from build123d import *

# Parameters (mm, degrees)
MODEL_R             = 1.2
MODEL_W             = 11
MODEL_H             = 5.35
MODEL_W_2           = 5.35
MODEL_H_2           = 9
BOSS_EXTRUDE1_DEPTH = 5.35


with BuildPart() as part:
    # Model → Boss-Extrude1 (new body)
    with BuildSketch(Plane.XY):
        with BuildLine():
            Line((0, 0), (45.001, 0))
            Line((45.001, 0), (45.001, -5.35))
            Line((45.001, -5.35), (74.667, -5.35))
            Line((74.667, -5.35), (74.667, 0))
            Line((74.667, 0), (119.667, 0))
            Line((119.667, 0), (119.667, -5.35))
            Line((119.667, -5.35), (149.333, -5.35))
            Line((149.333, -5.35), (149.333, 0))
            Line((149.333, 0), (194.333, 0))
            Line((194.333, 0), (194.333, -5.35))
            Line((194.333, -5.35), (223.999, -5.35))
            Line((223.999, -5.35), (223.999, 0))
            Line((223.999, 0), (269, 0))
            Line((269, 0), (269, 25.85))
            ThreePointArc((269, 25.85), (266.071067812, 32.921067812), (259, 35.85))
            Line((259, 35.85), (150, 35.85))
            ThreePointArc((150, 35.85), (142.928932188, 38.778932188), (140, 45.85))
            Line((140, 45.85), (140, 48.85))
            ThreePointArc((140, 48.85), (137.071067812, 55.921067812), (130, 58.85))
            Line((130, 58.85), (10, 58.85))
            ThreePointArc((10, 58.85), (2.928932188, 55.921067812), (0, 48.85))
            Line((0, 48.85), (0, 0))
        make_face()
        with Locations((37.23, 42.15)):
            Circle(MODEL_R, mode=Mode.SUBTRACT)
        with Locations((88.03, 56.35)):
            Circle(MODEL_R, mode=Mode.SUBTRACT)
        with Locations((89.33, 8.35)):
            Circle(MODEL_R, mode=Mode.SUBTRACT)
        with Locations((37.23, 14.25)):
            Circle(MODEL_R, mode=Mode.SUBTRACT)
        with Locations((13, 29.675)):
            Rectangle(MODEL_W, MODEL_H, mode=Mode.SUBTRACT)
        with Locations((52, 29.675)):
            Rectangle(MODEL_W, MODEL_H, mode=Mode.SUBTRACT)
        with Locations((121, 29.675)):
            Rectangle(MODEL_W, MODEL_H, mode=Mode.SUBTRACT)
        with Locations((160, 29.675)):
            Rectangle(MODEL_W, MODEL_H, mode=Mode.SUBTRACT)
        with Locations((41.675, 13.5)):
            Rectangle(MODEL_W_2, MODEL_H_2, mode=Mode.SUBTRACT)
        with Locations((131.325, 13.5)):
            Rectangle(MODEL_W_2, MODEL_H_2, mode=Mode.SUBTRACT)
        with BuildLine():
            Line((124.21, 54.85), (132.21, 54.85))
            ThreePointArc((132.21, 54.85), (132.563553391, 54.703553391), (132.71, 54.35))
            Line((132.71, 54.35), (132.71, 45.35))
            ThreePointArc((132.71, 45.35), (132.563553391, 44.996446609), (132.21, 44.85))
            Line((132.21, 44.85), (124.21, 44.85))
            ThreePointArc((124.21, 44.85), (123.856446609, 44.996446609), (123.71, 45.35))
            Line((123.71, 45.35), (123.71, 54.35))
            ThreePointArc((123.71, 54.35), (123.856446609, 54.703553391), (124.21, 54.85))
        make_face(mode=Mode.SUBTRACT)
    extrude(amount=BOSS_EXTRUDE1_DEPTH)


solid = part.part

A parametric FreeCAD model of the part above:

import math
import FreeCAD as App
import Part
import Sketcher

doc = App.newDocument("Part")
body = doc.addObject("PartDesign::Body", "Body")

sketch1 = body.newObject("Sketcher::SketchObject", "Sketch")
sketch1.AttachmentSupport = (doc.getObject("XY_Plane"), [""])
sketch1.MapMode = "FlatFace"
sketch1.addGeometry([
    Part.LineSegment(App.Vector(0, 0, 0), App.Vector(45, 0, 0)),
    Part.LineSegment(App.Vector(45, 0, 0), App.Vector(45, -5.35, 0)),
    Part.LineSegment(App.Vector(45, -5.35, 0), App.Vector(74.67, -5.35, 0)),
    Part.LineSegment(App.Vector(74.67, -5.35, 0), App.Vector(74.67, 0, 0)),
    Part.LineSegment(App.Vector(74.67, 0, 0), App.Vector(119.67, 0, 0)),
    Part.LineSegment(App.Vector(119.67, 0, 0), App.Vector(119.67, -5.35, 0)),
    Part.LineSegment(App.Vector(119.67, -5.35, 0), App.Vector(149.33, -5.35, 0)),
    Part.LineSegment(App.Vector(149.33, -5.35, 0), App.Vector(149.33, 0, 0)),
    Part.LineSegment(App.Vector(149.33, 0, 0), App.Vector(194.33, 0, 0)),
    Part.LineSegment(App.Vector(194.33, 0, 0), App.Vector(194.33, -5.35, 0)),
    Part.LineSegment(App.Vector(194.33, -5.35, 0), App.Vector(224, -5.35, 0)),
    Part.LineSegment(App.Vector(224, -5.35, 0), App.Vector(224, 0, 0)),
    Part.LineSegment(App.Vector(224, 0, 0), App.Vector(269, 0, 0)),
    Part.LineSegment(App.Vector(269, 0, 0), App.Vector(269, 25.85, 0)),
    Part.ArcOfCircle(Part.Circle(App.Vector(259, 25.85, 0), App.Vector(0, 0, 1), 10), math.radians(0), math.radians(90)),
    Part.LineSegment(App.Vector(259, 35.85, 0), App.Vector(150, 35.85, 0)),
    Part.ArcOfCircle(Part.Circle(App.Vector(150, 45.85, 0), App.Vector(0, 0, 1), 10), math.radians(180), math.radians(270)),
    Part.LineSegment(App.Vector(140, 45.85, 0), App.Vector(140, 48.85, 0)),
    Part.ArcOfCircle(Part.Circle(App.Vector(130, 48.85, 0), App.Vector(0, 0, 1), 10), math.radians(0), math.radians(90)),
    Part.LineSegment(App.Vector(130, 58.85, 0), App.Vector(10, 58.85, 0)),
    Part.ArcOfCircle(Part.Circle(App.Vector(10, 48.85, 0), App.Vector(0, 0, 1), 10), math.radians(90), math.radians(180)),
    Part.LineSegment(App.Vector(0, 48.85, 0), App.Vector(0, 0, 0)),
    Part.LineSegment(App.Vector(44.35, 9, 0), App.Vector(39, 9, 0)),
    Part.LineSegment(App.Vector(39, 9, 0), App.Vector(39, 18, 0)),
    Part.LineSegment(App.Vector(39, 18, 0), App.Vector(44.35, 18, 0)),
    Part.LineSegment(App.Vector(44.35, 18, 0), App.Vector(44.35, 9, 0)),
    Part.Circle(App.Vector(37.23, 14.25, 0), App.Vector(0, 0, 1), 1.2),
    Part.LineSegment(App.Vector(18.5, 27, 0), App.Vector(7.5, 27, 0)),
    Part.LineSegment(App.Vector(7.5, 27, 0), App.Vector(7.5, 32.35, 0)),
    Part.LineSegment(App.Vector(7.5, 32.35, 0), App.Vector(18.5, 32.35, 0)),
    Part.LineSegment(App.Vector(18.5, 32.35, 0), App.Vector(18.5, 27, 0)),
    Part.LineSegment(App.Vector(57.5, 27, 0), App.Vector(46.5, 27, 0)),
    Part.LineSegment(App.Vector(46.5, 27, 0), App.Vector(46.5, 32.35, 0)),
    Part.LineSegment(App.Vector(46.5, 32.35, 0), App.Vector(57.5, 32.35, 0)),
    Part.LineSegment(App.Vector(57.5, 32.35, 0), App.Vector(57.5, 27, 0)),
    Part.Circle(App.Vector(89.33, 8.35, 0), App.Vector(0, 0, 1), 1.2),
    Part.LineSegment(App.Vector(134, 9, 0), App.Vector(128.65, 9, 0)),
    Part.LineSegment(App.Vector(128.65, 9, 0), App.Vector(128.65, 18, 0)),
    Part.LineSegment(App.Vector(128.65, 18, 0), App.Vector(134, 18, 0)),
    Part.LineSegment(App.Vector(134, 18, 0), App.Vector(134, 9, 0)),
    Part.LineSegment(App.Vector(126.5, 27, 0), App.Vector(115.5, 27, 0)),
    Part.LineSegment(App.Vector(115.5, 27, 0), App.Vector(115.5, 32.35, 0)),
    Part.LineSegment(App.Vector(115.5, 32.35, 0), App.Vector(126.5, 32.35, 0)),
    Part.LineSegment(App.Vector(126.5, 32.35, 0), App.Vector(126.5, 27, 0)),
    Part.LineSegment(App.Vector(165.5, 27, 0), App.Vector(154.5, 27, 0)),
    Part.LineSegment(App.Vector(154.5, 27, 0), App.Vector(154.5, 32.35, 0)),
    Part.LineSegment(App.Vector(154.5, 32.35, 0), App.Vector(165.5, 32.35, 0)),
    Part.LineSegment(App.Vector(165.5, 32.35, 0), App.Vector(165.5, 27, 0)),
    Part.Circle(App.Vector(37.23, 42.15, 0), App.Vector(0, 0, 1), 1.2),
    Part.Circle(App.Vector(88.03, 56.35, 0), App.Vector(0, 0, 1), 1.2),
    Part.ArcOfCircle(Part.Circle(App.Vector(124.21, 54.35, 0), App.Vector(0, 0, 1), 0.5), math.radians(90), math.radians(180)),
    Part.LineSegment(App.Vector(124.21, 54.85, 0), App.Vector(132.21, 54.85, 0)),
    Part.ArcOfCircle(Part.Circle(App.Vector(132.21, 54.35, 0), App.Vector(0, 0, 1), 0.5), math.radians(0), math.radians(90)),
    Part.LineSegment(App.Vector(132.71, 54.35, 0), App.Vector(132.71, 45.35, 0)),
    Part.ArcOfCircle(Part.Circle(App.Vector(132.21, 45.35, 0), App.Vector(0, 0, 1), 0.5), math.radians(-90), math.radians(0)),
    Part.LineSegment(App.Vector(132.21, 44.85, 0), App.Vector(124.21, 44.85, 0)),
    Part.ArcOfCircle(Part.Circle(App.Vector(124.21, 45.35, 0), App.Vector(0, 0, 1), 0.5), math.radians(180), math.radians(270)),
    Part.LineSegment(App.Vector(123.71, 45.35, 0), App.Vector(123.71, 54.35, 0)),
], False)
sketch1.addConstraint([
    Sketcher.Constraint("Coincident", 0, 2, 1, 1),
    Sketcher.Constraint("Coincident", 1, 2, 2, 1),
    Sketcher.Constraint("Coincident", 2, 2, 3, 1),
    Sketcher.Constraint("Coincident", 3, 2, 4, 1),
    Sketcher.Constraint("Coincident", 4, 2, 5, 1),
    Sketcher.Constraint("Coincident", 5, 2, 6, 1),
    Sketcher.Constraint("Coincident", 6, 2, 7, 1),
    Sketcher.Constraint("Coincident", 7, 2, 8, 1),
    Sketcher.Constraint("Coincident", 8, 2, 9, 1),
    Sketcher.Constraint("Coincident", 9, 2, 10, 1),
    Sketcher.Constraint("Coincident", 10, 2, 11, 1),
    Sketcher.Constraint("Coincident", 11, 2, 12, 1),
    Sketcher.Constraint("Coincident", 12, 2, 13, 1),
    Sketcher.Constraint("Tangent", 13, 2, 14, 1),
    Sketcher.Constraint("Tangent", 14, 2, 15, 1),
    Sketcher.Constraint("Tangent", 15, 2, 16, 2),
    Sketcher.Constraint("Tangent", 16, 1, 17, 1),
    Sketcher.Constraint("Tangent", 17, 2, 18, 1),
    Sketcher.Constraint("Tangent", 18, 2, 19, 1),
    Sketcher.Constraint("Tangent", 19, 2, 20, 1),
    Sketcher.Constraint("Tangent", 20, 2, 21, 1),
    Sketcher.Constraint("Coincident", 21, 2, 0, 1),
    Sketcher.Constraint("Coincident", 22, 2, 23, 1),
    Sketcher.Constraint("Coincident", 23, 2, 24, 1),
    Sketcher.Constraint("Coincident", 24, 2, 25, 1),
    Sketcher.Constraint("Coincident", 25, 2, 22, 1),
    Sketcher.Constraint("Coincident", 27, 2, 28, 1),
    Sketcher.Constraint("Coincident", 28, 2, 29, 1),
    Sketcher.Constraint("Coincident", 29, 2, 30, 1),
    Sketcher.Constraint("Coincident", 30, 2, 27, 1),
    Sketcher.Constraint("Coincident", 31, 2, 32, 1),
    Sketcher.Constraint("Coincident", 32, 2, 33, 1),
    Sketcher.Constraint("Coincident", 33, 2, 34, 1),
    Sketcher.Constraint("Coincident", 34, 2, 31, 1),
    Sketcher.Constraint("Coincident", 36, 2, 37, 1),
    Sketcher.Constraint("Coincident", 37, 2, 38, 1),
    Sketcher.Constraint("Coincident", 38, 2, 39, 1),
    Sketcher.Constraint("Coincident", 39, 2, 36, 1),
    Sketcher.Constraint("Coincident", 40, 2, 41, 1),
    Sketcher.Constraint("Coincident", 41, 2, 42, 1),
    Sketcher.Constraint("Coincident", 42, 2, 43, 1),
    Sketcher.Constraint("Coincident", 43, 2, 40, 1),
    Sketcher.Constraint("Coincident", 44, 2, 45, 1),
    Sketcher.Constraint("Coincident", 45, 2, 46, 1),
    Sketcher.Constraint("Coincident", 46, 2, 47, 1),
    Sketcher.Constraint("Coincident", 47, 2, 44, 1),
    Sketcher.Constraint("Tangent", 50, 1, 51, 1),
    Sketcher.Constraint("Tangent", 51, 2, 52, 2),
    Sketcher.Constraint("Tangent", 52, 1, 53, 1),
    Sketcher.Constraint("Tangent", 53, 2, 54, 2),
    Sketcher.Constraint("Tangent", 54, 1, 55, 1),
    Sketcher.Constraint("Tangent", 55, 2, 56, 2),
    Sketcher.Constraint("Tangent", 56, 1, 57, 1),
    Sketcher.Constraint("Tangent", 57, 2, 50, 2),
    Sketcher.Constraint("Horizontal", 0),
    Sketcher.Constraint("Vertical", 1),
    Sketcher.Constraint("Horizontal", 2),
    Sketcher.Constraint("Vertical", 3),
    Sketcher.Constraint("Horizontal", 4),
    Sketcher.Constraint("Vertical", 5),
    Sketcher.Constraint("Horizontal", 6),
    Sketcher.Constraint("Vertical", 7),
    Sketcher.Constraint("Horizontal", 8),
    Sketcher.Constraint("Vertical", 9),
    Sketcher.Constraint("Horizontal", 10),
    Sketcher.Constraint("Vertical", 11),
    Sketcher.Constraint("Horizontal", 12),
    Sketcher.Constraint("Vertical", 13),
    Sketcher.Constraint("Horizontal", 15),
    Sketcher.Constraint("Vertical", 17),
    Sketcher.Constraint("Horizontal", 19),
    Sketcher.Constraint("Vertical", 21),
    Sketcher.Constraint("Horizontal", 22),
    Sketcher.Constraint("Vertical", 23),
    Sketcher.Constraint("Horizontal", 24),
    Sketcher.Constraint("Vertical", 25),
    Sketcher.Constraint("Horizontal", 27),
    Sketcher.Constraint("Vertical", 28),
    Sketcher.Constraint("Horizontal", 29),
    Sketcher.Constraint("Vertical", 30),
    Sketcher.Constraint("Horizontal", 31),
    Sketcher.Constraint("Vertical", 32),
    Sketcher.Constraint("Horizontal", 33),
    Sketcher.Constraint("Vertical", 34),
    Sketcher.Constraint("Horizontal", 36),
    Sketcher.Constraint("Vertical", 37),
    Sketcher.Constraint("Horizontal", 38),
    Sketcher.Constraint("Vertical", 39),
    Sketcher.Constraint("Horizontal", 40),
    Sketcher.Constraint("Vertical", 41),
    Sketcher.Constraint("Horizontal", 42),
    Sketcher.Constraint("Vertical", 43),
    Sketcher.Constraint("Horizontal", 44),
    Sketcher.Constraint("Vertical", 45),
    Sketcher.Constraint("Horizontal", 46),
    Sketcher.Constraint("Vertical", 47),
    Sketcher.Constraint("Horizontal", 51),
    Sketcher.Constraint("Vertical", 53),
    Sketcher.Constraint("Horizontal", 55),
    Sketcher.Constraint("Vertical", 57),
    Sketcher.Constraint("Coincident", 21, 2, -1, 1),
    Sketcher.Constraint("Equal", 14, 16),
    Sketcher.Constraint("Equal", 16, 18),
    Sketcher.Constraint("Equal", 18, 20),
    Sketcher.Constraint("Equal", 26, 35),
    Sketcher.Constraint("Equal", 35, 48),
    Sketcher.Constraint("Equal", 48, 49),
    Sketcher.Constraint("Equal", 50, 52),
    Sketcher.Constraint("Equal", 52, 54),
    Sketcher.Constraint("Equal", 54, 56),
    Sketcher.Constraint("PointOnObject", 3, 2, -1),
    Sketcher.Constraint("PointOnObject", 7, 2, -1),
    Sketcher.Constraint("PointOnObject", 11, 2, -1),
    Sketcher.Constraint("Horizontal", 2, 2, 5, 2),
    Sketcher.Constraint("Horizontal", 6, 2, 9, 2),
    Sketcher.Constraint("Horizontal", 30, 2, 31, 2),
    Sketcher.Constraint("Horizontal", 29, 2, 32, 2),
    Sketcher.Constraint("Horizontal", 25, 2, 36, 2),
    Sketcher.Constraint("Horizontal", 24, 2, 37, 2),
    Sketcher.Constraint("Horizontal", 34, 2, 40, 2),
    Sketcher.Constraint("Horizontal", 33, 2, 41, 2),
    Sketcher.Constraint("Horizontal", 43, 2, 44, 2),
    Sketcher.Constraint("Horizontal", 42, 2, 45, 2),
    Sketcher.Constraint("Vertical", 26, 3, 48, 3),
    Sketcher.Constraint("Equal", 2, 6),
    Sketcher.Constraint("Equal", 4, 8),
    Sketcher.Constraint("Equal", 6, 10),
    Sketcher.Constraint("Equal", 0, 12),
    Sketcher.Constraint("Equal", 29, 31),
    Sketcher.Constraint("Equal", 24, 36),
    Sketcher.Constraint("Equal", 33, 40),
    Sketcher.Constraint("Equal", 42, 44),
    Sketcher.Constraint("Equal", 38, 1),
    Sketcher.Constraint("Equal", 11, 28),
    Sketcher.Constraint("Equal", 39, 53),
    Sketcher.Constraint("Radius", 14, 10.0),
    Sketcher.Constraint("Diameter", 26, 2.4),
    Sketcher.Constraint("Radius", 50, 0.5),
    Sketcher.Constraint("DistanceX", 4, 1, 4, 2, 45.0),
    Sketcher.Constraint("DistanceX", 15, 2, 15, 1, 109.0),
    Sketcher.Constraint("DistanceX", 19, 2, 19, 1, 120.0),
    Sketcher.Constraint("DistanceX", 27, 2, 27, 1, 11.0),
    Sketcher.Constraint("DistanceX", 51, 1, 51, 2, 8.0),
    Sketcher.Constraint("DistanceY", 17, 1, 17, 2, 3.0),
    Sketcher.Constraint("DistanceY", 23, 1, 23, 2, 9.0),
    Sketcher.Constraint("DistanceX", -1, 1, 22, 2, 39.0),
    Sketcher.Constraint("DistanceY", -1, 1, 22, 2, 9.0),
    Sketcher.Constraint("DistanceY", -1, 1, 27, 2, 27.0),
    Sketcher.Constraint("DistanceX", -1, 1, 38, 2, 134.0),
    Sketcher.Constraint("DistanceX", 22, 2, 22, 1, 5.35),
    Sketcher.Constraint("DistanceY", 13, 1, 13, 2, 25.85),
    Sketcher.Constraint("DistanceX", -1, 1, 27, 2, 7.5),
    Sketcher.Constraint("DistanceX", -1, 1, 31, 2, 46.5),
    Sketcher.Constraint("DistanceX", -1, 1, 40, 2, 115.5),
    Sketcher.Constraint("DistanceX", -1, 1, 44, 2, 154.5),
    Sketcher.Constraint("DistanceX", 0, 1, 0, 2, 45.001),
    Sketcher.Constraint("DistanceX", -1, 1, 26, 3, 37.23),
    Sketcher.Constraint("DistanceY", -1, 1, 26, 3, 14.25),
    Sketcher.Constraint("DistanceX", -1, 1, 35, 3, 89.33),
    Sketcher.Constraint("DistanceY", -1, 1, 35, 3, 8.35),
    Sketcher.Constraint("DistanceY", -1, 1, 48, 3, 42.15),
    Sketcher.Constraint("DistanceX", -1, 1, 49, 3, 88.03),
    Sketcher.Constraint("DistanceY", -1, 1, 49, 3, 56.35),
    Sketcher.Constraint("DistanceX", -1, 1, 50, 3, 124.21),
    Sketcher.Constraint("DistanceY", -1, 1, 50, 3, 54.35),
])
pad1 = body.newObject("PartDesign::Pad", "Pad")
pad1.Profile = sketch1
pad1.Length = 5.35

doc.recompute()
